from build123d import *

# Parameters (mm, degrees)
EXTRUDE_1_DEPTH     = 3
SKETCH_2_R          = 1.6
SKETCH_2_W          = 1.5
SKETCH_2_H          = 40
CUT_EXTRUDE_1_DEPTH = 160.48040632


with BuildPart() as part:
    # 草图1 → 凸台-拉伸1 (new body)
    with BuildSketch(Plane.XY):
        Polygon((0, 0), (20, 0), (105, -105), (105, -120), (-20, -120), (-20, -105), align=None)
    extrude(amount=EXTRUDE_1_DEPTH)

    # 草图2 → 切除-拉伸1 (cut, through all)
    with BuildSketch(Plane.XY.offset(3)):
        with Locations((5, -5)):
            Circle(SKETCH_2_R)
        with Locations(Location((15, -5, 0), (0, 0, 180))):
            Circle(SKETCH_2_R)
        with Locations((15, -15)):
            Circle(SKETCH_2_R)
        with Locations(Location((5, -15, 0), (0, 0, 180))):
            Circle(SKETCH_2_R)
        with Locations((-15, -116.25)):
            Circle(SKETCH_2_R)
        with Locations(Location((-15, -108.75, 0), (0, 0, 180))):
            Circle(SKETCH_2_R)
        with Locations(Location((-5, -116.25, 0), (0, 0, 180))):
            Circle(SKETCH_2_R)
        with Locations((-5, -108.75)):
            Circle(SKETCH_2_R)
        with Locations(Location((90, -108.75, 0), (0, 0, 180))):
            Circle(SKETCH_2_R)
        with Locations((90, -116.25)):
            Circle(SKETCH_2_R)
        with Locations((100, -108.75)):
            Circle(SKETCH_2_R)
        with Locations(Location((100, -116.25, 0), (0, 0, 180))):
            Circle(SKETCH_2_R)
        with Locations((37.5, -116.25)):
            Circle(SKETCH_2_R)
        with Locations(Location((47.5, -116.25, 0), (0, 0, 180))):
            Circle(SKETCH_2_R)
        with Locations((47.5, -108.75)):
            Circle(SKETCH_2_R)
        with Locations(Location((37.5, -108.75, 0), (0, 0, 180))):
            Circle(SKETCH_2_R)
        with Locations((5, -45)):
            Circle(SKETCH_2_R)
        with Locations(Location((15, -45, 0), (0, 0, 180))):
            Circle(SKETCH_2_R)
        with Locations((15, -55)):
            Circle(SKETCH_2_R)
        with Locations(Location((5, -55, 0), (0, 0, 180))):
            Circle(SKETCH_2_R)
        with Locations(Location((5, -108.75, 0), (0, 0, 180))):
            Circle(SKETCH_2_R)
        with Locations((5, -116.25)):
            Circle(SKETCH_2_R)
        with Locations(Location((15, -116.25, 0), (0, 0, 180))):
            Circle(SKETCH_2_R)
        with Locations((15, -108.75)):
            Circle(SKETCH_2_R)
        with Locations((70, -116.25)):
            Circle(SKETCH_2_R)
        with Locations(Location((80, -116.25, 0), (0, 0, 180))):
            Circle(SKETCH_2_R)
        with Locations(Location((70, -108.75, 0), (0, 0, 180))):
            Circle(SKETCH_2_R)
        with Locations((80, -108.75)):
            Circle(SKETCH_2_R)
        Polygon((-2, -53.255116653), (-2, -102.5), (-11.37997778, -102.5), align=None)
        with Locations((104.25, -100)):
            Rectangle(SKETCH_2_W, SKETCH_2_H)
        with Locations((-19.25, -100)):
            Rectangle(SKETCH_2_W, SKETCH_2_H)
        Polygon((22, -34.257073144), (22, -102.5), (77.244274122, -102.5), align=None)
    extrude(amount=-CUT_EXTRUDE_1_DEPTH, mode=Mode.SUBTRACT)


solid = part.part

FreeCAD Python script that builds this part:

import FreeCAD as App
import Part
import Sketcher
from FreeCAD import Vector
Q = App.Units.Quantity

doc = App.newDocument("Part")
params = doc.addObject("Spreadsheet::Sheet", "Params")
for row, (alias, value) in enumerate([
    ("sketch1_width", "20 mm"),
    ("sketch1_width2", "125 mm"),
    ("sketch1_height", "15 mm"),
    ("pad1_length", "3 mm"),
    ("sketch2_diameter", "3.2 mm"),
    ("sketch2_height", "40 mm"),
    ("sketch2_width", "1.5 mm"),
], start=1):
    params.set(f"A{row}", alias)
    params.set(f"B{row}", "=" + value)
    params.setAlias(f"B{row}", alias)

body = doc.addObject("PartDesign::Body", "Body")

# Sketch on XY plane
sketch1 = body.newObject("Sketcher::SketchObject", "Sketch")
sketch1.AttachmentSupport = (doc.getObject("XY_Plane"), [""])
sketch1.MapMode = "FlatFace"
sketch1.addGeometry(Part.LineSegment(Vector(20, 0, 0), Vector(0, 0, 0)), False)
sketch1.addGeometry(Part.LineSegment(Vector(0, 0, 0), Vector(-20, -105, 0)), False)
sketch1.addGeometry(Part.LineSegment(Vector(-20, -105, 0), Vector(-20, -120, 0)), False)
sketch1.addGeometry(Part.LineSegment(Vector(-20, -120, 0), Vector(105, -120, 0)), False)
sketch1.addGeometry(Part.LineSegment(Vector(105, -120, 0), Vector(105, -105, 0)), False)
sketch1.addGeometry(Part.LineSegment(Vector(105, -105, 0), Vector(20, 0, 0)), False)
sketch1.addConstraint(Sketcher.Constraint("Coincident", 0, 2, 1, 1))
sketch1.addConstraint(Sketcher.Constraint("Coincident", 1, 2, 2, 1))
sketch1.addConstraint(Sketcher.Constraint("Coincident", 2, 2, 3, 1))
sketch1.addConstraint(Sketcher.Constraint("Coincident", 3, 2, 4, 1))
sketch1.addConstraint(Sketcher.Constraint("Coincident", 4, 2, 5, 1))
sketch1.addConstraint(Sketcher.Constraint("Coincident", 5, 2, 0, 1))
sketch1.addConstraint(Sketcher.Constraint("Horizontal", 0))
sketch1.addConstraint(Sketcher.Constraint("Vertical", 2))
sketch1.addConstraint(Sketcher.Constraint("Horizontal", 3))
sketch1.addConstraint(Sketcher.Constraint("Vertical", 4))
sketch1.addConstraint(Sketcher.Constraint("Coincident", 0, 2, -1, 1))
sketch1.addConstraint(Sketcher.Constraint("Horizontal", 1, 2, 4, 2))
sketch1.addConstraint(Sketcher.Constraint("DistanceX", 0, 2, 0, 1, Q("20 mm")))
sketch1.addConstraint(Sketcher.Constraint("DistanceX", 3, 1, 3, 2, Q("125 mm")))
sketch1.addConstraint(Sketcher.Constraint("DistanceY", 2, 2, 2, 1, Q("15 mm")))
sketch1.addConstraint(Sketcher.Constraint("DistanceX", 1, 2, -1, 1, Q("20 mm")))
sketch1.addConstraint(Sketcher.Constraint("DistanceY", 1, 2, -1, 1, Q("105 mm")))
sketch1.setExpression("Constraints[12]", "Params.sketch1_width")
sketch1.setExpression("Constraints[13]", "Params.sketch1_width2")
sketch1.setExpression("Constraints[14]", "Params.sketch1_height")
pad1 = body.newObject("PartDesign::Pad", "Pad")
pad1.Profile = sketch1
pad1.setExpression("Length", "Params.pad1_length")

# Sketch on XY plane
sketch2 = body.newObject("Sketcher::SketchObject", "Sketch001")
sketch2.AttachmentSupport = (doc.getObject("XY_Plane"), [""])
sketch2.MapMode = "FlatFace"
sketch2.AttachmentOffset = App.Placement(Vector(0, 0, 3), App.Rotation())
sketch2.addGeometry(Part.Circle(Vector(5, -5, 0), Vector(0, 0, 1), 1.6), False)
sketch2.addGeometry(Part.Circle(Vector(15, -5, 0), Vector(0, 0, 1), 1.6), False)
sketch2.addGeometry(Part.Circle(Vector(15, -15, 0), Vector(0, 0, 1), 1.6), False)
sketch2.addGeometry(Part.Circle(Vector(5, -15, 0), Vector(0, 0, 1), 1.6), False)
sketch2.addGeometry(Part.Circle(Vector(-15, -116.2, 0), Vector(0, 0, 1), 1.6), False)
sketch2.addGeometry(Part.Circle(Vector(-15, -108.8, 0), Vector(0, 0, 1), 1.6), False)
sketch2.addGeometry(Part.Circle(Vector(-5, -116.2, 0), Vector(0, 0, 1), 1.6), False)
sketch2.addGeometry(Part.Circle(Vector(-5, -108.8, 0), Vector(0, 0, 1), 1.6), False)
sketch2.addGeometry(Part.Circle(Vector(90, -108.8, 0), Vector(0, 0, 1), 1.6), False)
sketch2.addGeometry(Part.Circle(Vector(90, -116.2, 0), Vector(0, 0, 1), 1.6), False)
sketch2.addGeometry(Part.Circle(Vector(100, -108.8, 0), Vector(0, 0, 1), 1.6), False)
sketch2.addGeometry(Part.Circle(Vector(100, -116.2, 0), Vector(0, 0, 1), 1.6), False)
sketch2.addGeometry(Part.Circle(Vector(37.5, -116.2, 0), Vector(0, 0, 1), 1.6), False)
sketch2.addGeometry(Part.Circle(Vector(47.5, -116.2, 0), Vector(0, 0, 1), 1.6), False)
sketch2.addGeometry(Part.Circle(Vector(47.5, -108.8, 0), Vector(0, 0, 1), 1.6), False)
sketch2.addGeometry(Part.Circle(Vector(37.5, -108.8, 0), Vector(0, 0, 1), 1.6), False)
sketch2.addGeometry(Part.Circle(Vector(5, -45, 0), Vector(0, 0, 1), 1.6), False)
sketch2.addGeometry(Part.Circle(Vector(15, -45, 0), Vector(0, 0, 1), 1.6), False)
sketch2.addGeometry(Part.Circle(Vector(15, -55, 0), Vector(0, 0, 1), 1.6), False)
sketch2.addGeometry(Part.Circle(Vector(5, -55, 0), Vector(0, 0, 1), 1.6), False)
sketch2.addGeometry(Part.Circle(Vector(5, -108.8, 0), Vector(0, 0, 1), 1.6), False)
sketch2.addGeometry(Part.Circle(Vector(5, -116.2, 0), Vector(0, 0, 1), 1.6), False)
sketch2.addGeometry(Part.Circle(Vector(15, -116.2, 0), Vector(0, 0, 1), 1.6), False)
sketch2.addGeometry(Part.Circle(Vector(15, -108.8, 0), Vector(0, 0, 1), 1.6), False)
sketch2.addGeometry(Part.Circle(Vector(70, -116.2, 0), Vector(0, 0, 1), 1.6), False)
sketch2.addGeometry(Part.Circle(Vector(80, -116.2, 0), Vector(0, 0, 1), 1.6), False)
sketch2.addGeometry(Part.Circle(Vector(70, -108.8, 0), Vector(0, 0, 1), 1.6), False)
sketch2.addGeometry(Part.Circle(Vector(80, -108.8, 0), Vector(0, 0, 1), 1.6), False)
sketch2.addGeometry(Part.LineSegment(Vector(-2, -102.5, 0), Vector(-2, -53.3, 0)), False)
sketch2.addGeometry(Part.LineSegment(Vector(-2, -53.3, 0), Vector(-11.4, -102.5, 0)), False)
sketch2.addGeometry(Part.LineSegment(Vector(-11.4, -102.5, 0), Vector(-2, -102.5, 0)), False)
sketch2.addGeometry(Part.LineSegment(Vector(103.5, -80, 0), Vector(103.5, -120, 0)), False)
sketch2.addGeometry(Part.LineSegment(Vector(103.5, -120, 0), Vector(105, -120, 0)), False)
sketch2.addGeometry(Part.LineSegment(Vector(105, -120, 0), Vector(105, -80, 0)), False)
sketch2.addGeometry(Part.LineSegment(Vector(105, -80, 0), Vector(103.5, -80, 0)), False)
sketch2.addGeometry(Part.LineSegment(Vector(-20, -80, 0), Vector(-20, -120, 0)), False)
sketch2.addGeometry(Part.LineSegment(Vector(-20, -120, 0), Vector(-18.5, -120, 0)), False)
sketch2.addGeometry(Part.LineSegment(Vector(-18.5, -120, 0), Vector(-18.5, -80, 0)), False)
sketch2.addGeometry(Part.LineSegment(Vector(-18.5, -80, 0), Vector(-20, -80, 0)), False)
sketch2.addGeometry(Part.LineSegment(Vector(22, -34.3, 0), Vector(22, -102.5, 0)), False)
sketch2.addGeometry(Part.LineSegment(Vector(22, -102.5, 0), Vector(77.2, -102.5, 0)), False)
sketch2.addGeometry(Part.LineSegment(Vector(77.2, -102.5, 0), Vector(22, -34.3, 0)), False)
sketch2.addConstraint(Sketcher.Constraint("Coincident", 28, 2, 29, 1))
sketch2.addConstraint(Sketcher.Constraint("Coincident", 29, 2, 30, 1))
sketch2.addConstraint(Sketcher.Constraint("Coincident", 30, 2, 28, 1))
sketch2.addConstraint(Sketcher.Constraint("Coincident", 31, 2, 32, 1))
sketch2.addConstraint(Sketcher.Constraint("Coincident", 32, 2, 33, 1))
sketch2.addConstraint(Sketcher.Constraint("Coincident", 33, 2, 34, 1))
sketch2.addConstraint(Sketcher.Constraint("Coincident", 34, 2, 31, 1))
sketch2.addConstraint(Sketcher.Constraint("Coincident", 35, 2, 36, 1))
sketch2.addConstraint(Sketcher.Constraint("Coincident", 36, 2, 37, 1))
sketch2.addConstraint(Sketcher.Constraint("Coincident", 37, 2, 38, 1))
sketch2.addConstraint(Sketcher.Constraint("Coincident", 38, 2, 35, 1))
sketch2.addConstraint(Sketcher.Constraint("Coincident", 39, 2, 40, 1))
sketch2.addConstraint(Sketcher.Constraint("Coincident", 40, 2, 41, 1))
sketch2.addConstraint(Sketcher.Constraint("Coincident", 41, 2, 39, 1))
sketch2.addConstraint(Sketcher.Constraint("Vertical", 28))
sketch2.addConstraint(Sketcher.Constraint("Horizontal", 30))
sketch2.addConstraint(Sketcher.Constraint("Vertical", 31))
sketch2.addConstraint(Sketcher.Constraint("Horizontal", 32))
sketch2.addConstraint(Sketcher.Constraint("Vertical", 33))
sketch2.addConstraint(Sketcher.Constraint("Horizontal", 34))
sketch2.addConstraint(Sketcher.Constraint("Vertical", 35))
sketch2.addConstraint(Sketcher.Constraint("Horizontal", 36))
sketch2.addConstraint(Sketcher.Constraint("Vertical", 37))
sketch2.addConstraint(Sketcher.Constraint("Horizontal", 38))
sketch2.addConstraint(Sketcher.Constraint("Vertical", 39))
sketch2.addConstraint(Sketcher.Constraint("Horizontal", 40))
sketch2.addConstraint(Sketcher.Constraint("Equal", 0, 1))
sketch2.addConstraint(Sketcher.Constraint("Equal", 1, 2))
sketch2.addConstraint(Sketcher.Constraint("Equal", 2, 3))
sketch2.addConstraint(Sketcher.Constraint("Equal", 3, 4))
sketch2.addConstraint(Sketcher.Constraint("Equal", 4, 5))
sketch2.addConstraint(Sketcher.Constraint("Equal", 5, 6))
sketch2.addConstraint(Sketcher.Constraint("Equal", 6, 7))
sketch2.addConstraint(Sketcher.Constraint("Equal", 7, 8))
sketch2.addConstraint(Sketcher.Constraint("Equal", 8, 9))
sketch2.addConstraint(Sketcher.Constraint("Equal", 9, 10))
sketch2.addConstraint(Sketcher.Constraint("Equal", 10, 11))
sketch2.addConstraint(Sketcher.Constraint("Equal", 11, 12))
sketch2.addConstraint(Sketcher.Constraint("Equal", 12, 13))
sketch2.addConstraint(Sketcher.Constraint("Equal", 13, 14))
sketch2.addConstraint(Sketcher.Constraint("Equal", 14, 15))
sketch2.addConstraint(Sketcher.Constraint("Equal", 15, 16))
sketch2.addConstraint(Sketcher.Constraint("Equal", 16, 17))
sketch2.addConstraint(Sketcher.Constraint("Equal", 17, 18))
sketch2.addConstraint(Sketcher.Constraint("Equal", 18, 19))
sketch2.addConstraint(Sketcher.Constraint("Equal", 19, 20))
sketch2.addConstraint(Sketcher.Constraint("Equal", 20, 21))
sketch2.addConstraint(Sketcher.Constraint("Equal", 21, 22))
sketch2.addConstraint(Sketcher.Constraint("Equal", 22, 23))
sketch2.addConstraint(Sketcher.Constraint("Equal", 23, 24))
sketch2.addConstraint(Sketcher.Constraint("Equal", 24, 25))
sketch2.addConstraint(Sketcher.Constraint("Equal", 25, 26))
sketch2.addConstraint(Sketcher.Constraint("Equal", 26, 27))
sketch2.addConstraint(Sketcher.Constraint("Symmetric", 7, 3, 20, 3, -2))
sketch2.addConstraint(Sketcher.Constraint("Symmetric", 6, 3, 21, 3, -2))
sketch2.addConstraint(Sketcher.Constraint("Symmetric", 4, 3, 22, 3, -2))
sketch2.addConstraint(Sketcher.Constraint("Symmetric", 5, 3, 23, 3, -2))
sketch2.addConstraint(Sketcher.Constraint("Horizontal", 0, 3, 1, 3))
sketch2.addConstraint(Sketcher.Constraint("Horizontal", 2, 3, 3, 3))
sketch2.addConstraint(Sketcher.Constraint("Horizontal", 4, 3, 6, 3))
sketch2.addConstraint(Sketcher.Constraint("Horizontal", 5, 3, 7, 3))
sketch2.addConstraint(Sketcher.Constraint("Horizontal", 7, 3, 8, 3))
sketch2.addConstraint(Sketcher.Constraint("Horizontal", 6, 3, 9, 3))
sketch2.addConstraint(Sketcher.Constraint("Horizontal", 8, 3, 10, 3))
sketch2.addConstraint(Sketcher.Constraint("Horizontal", 9, 3, 11, 3))
sketch2.addConstraint(Sketcher.Constraint("Horizontal", 11, 3, 12, 3))
sketch2.addConstraint(Sketcher.Constraint("Horizontal", 12, 3, 13, 3))
sketch2.addConstraint(Sketcher.Constraint("Horizontal", 10, 3, 14, 3))
sketch2.addConstraint(Sketcher.Constraint("Horizontal", 14, 3, 15, 3))
sketch2.addConstraint(Sketcher.Constraint("Horizontal", 16, 3, 17, 3))
sketch2.addConstraint(Sketcher.Constraint("Horizontal", 18, 3, 19, 3))
sketch2.addConstraint(Sketcher.Constraint("Horizontal", 22, 3, 24, 3))
sketch2.addConstraint(Sketcher.Constraint("Horizontal", 24, 3, 25, 3))
sketch2.addConstraint(Sketcher.Constraint("Horizontal", 23, 3, 26, 3))
sketch2.addConstraint(Sketcher.Constraint("Horizontal", 26, 3, 27, 3))
sketch2.addConstraint(Sketcher.Constraint("Horizontal", 32, 2, 35, 2))
sketch2.addConstraint(Sketcher.Constraint("Horizontal", 34, 2, 37, 2))
sketch2.addConstraint(Sketcher.Constraint("Horizontal", 30, 2, 39, 2))
sketch2.addConstraint(Sketcher.Constraint("Vertical", 1, 3, 2, 3))
sketch2.addConstraint(Sketcher.Constraint("Vertical", 0, 3, 3, 3))
sketch2.addConstraint(Sketcher.Constraint("Vertical", 4, 3, 5, 3))
sketch2.addConstraint(Sketcher.Constraint("Vertical", 6, 3, 7, 3))
sketch2.addConstraint(Sketcher.Constraint("Vertical", 8, 3, 9, 3))
sketch2.addConstraint(Sketcher.Constraint("Vertical", 10, 3, 11, 3))
sketch2.addConstraint(Sketcher.Constraint("Vertical", 13, 3, 14, 3))
sketch2.addConstraint(Sketcher.Constraint("Vertical", 12, 3, 15, 3))
sketch2.addConstraint(Sketcher.Constraint("Vertical", 3, 3, 16, 3))
sketch2.addConstraint(Sketcher.Constraint("Vertical", 2, 3, 17, 3))
sketch2.addConstraint(Sketcher.Constraint("Vertical", 17, 3, 18, 3))
sketch2.addConstraint(Sketcher.Constraint("Vertical", 16, 3, 19, 3))
sketch2.addConstraint(Sketcher.Constraint("Vertical", 19, 3, 20, 3))
sketch2.addConstraint(Sketcher.Constraint("Vertical", 18, 3, 22, 3))
sketch2.addConstraint(Sketcher.Constraint("Vertical", 24, 3, 26, 3))
sketch2.addConstraint(Sketcher.Constraint("Vertical", 25, 3, 27, 3))
sketch2.addConstraint(Sketcher.Constraint("Equal", 34, 36))
sketch2.addConstraint(Sketcher.Constraint("Diameter", 0, Q("3.2 mm")))
sketch2.addConstraint(Sketcher.Constraint("DistanceY", 31, 2, 31, 1, Q("40 mm")))
sketch2.addConstraint(Sketcher.Constraint("DistanceX", 32, 1, 32, 2, Q("1.5 mm")))
sketch2.addConstraint(Sketcher.Constraint("DistanceX", -1, 1, 0, 3, Q("5 mm")))
sketch2.addConstraint(Sketcher.Constraint("DistanceY", 0, 3, -1, 1, Q("5 mm")))
sketch2.addConstraint(Sketcher.Constraint("DistanceX", -1, 1, 1, 3, Q("15 mm")))
sketch2.addConstraint(Sketcher.Constraint("DistanceY", 2, 3, -1, 1, Q("15 mm")))
sketch2.addConstraint(Sketcher.Constraint("DistanceX", -1, 1, 8, 3, Q("90 mm")))
sketch2.addConstraint(Sketcher.Constraint("DistanceX", -1, 1, 10, 3, Q("100 mm")))
sketch2.addConstraint(Sketcher.Constraint("DistanceY", 16, 3, -1, 1, Q("45 mm")))
sketch2.addConstraint(Sketcher.Constraint("DistanceY", 18, 3, -1, 1, Q("55 mm")))
sketch2.addConstraint(Sketcher.Constraint("DistanceX", -1, 1, 24, 3, Q("70 mm")))
sketch2.addConstraint(Sketcher.Constraint("DistanceX", -1, 1, 25, 3, Q("80 mm")))
sketch2.addConstraint(Sketcher.Constraint("DistanceX", 28, 2, -1, 1, Q("2 mm")))
sketch2.addConstraint(Sketcher.Constraint("DistanceY", 31, 2, -1, 1, Q("120 mm")))
sketch2.addConstraint(Sketcher.Constraint("DistanceX", -1, 1, 32, 2, Q("105 mm")))
sketch2.addConstraint(Sketcher.Constraint("DistanceX", 35, 2, -1, 1, Q("20 mm")))
sketch2.addConstraint(Sketcher.Constraint("DistanceX", -1, 1, 39, 2, Q("22 mm")))
sketch2.addConstraint(Sketcher.Constraint("DistanceX", 12, 3, 13, 3, Q("10 mm")))
sketch2.addConstraint(Sketcher.Constraint("DistanceX", -1, 1, 12, 3, Q("37.5 mm")))
sketch2.addConstraint(Sketcher.Constraint("DistanceY", 29, 2, -1, 1, Q("102.5 mm")))
sketch2.addConstraint(Sketcher.Constraint("DistanceY", 4, 3, 5, 3, Q("7.5 mm")))
sketch2.addConstraint(Sketcher.Constraint("DistanceY", 4, 3, -1, 1, Q("116.25 mm")))
sketch2.addConstraint(Sketcher.Constraint("DistanceX", 30, 1, 30, 2, Q("9.379978 mm")))
sketch2.addConstraint(Sketcher.Constraint("DistanceX", 40, 1, 40, 2, Q("55.244274 mm")))
sketch2.addConstraint(Sketcher.Constraint("DistanceY", 28, 1, 28, 2, Q("49.244883 mm")))
sketch2.addConstraint(Sketcher.Constraint("DistanceY", 39, 2, 39, 1, Q("68.242927 mm")))
sketch2.setExpression("Constraints[95]", "Params.sketch2_diameter")
sketch2.setExpression("Constraints[96]", "Params.sketch2_height")
sketch2.setExpression("Constraints[97]", "Params.sketch2_width")
pocket1 = body.newObject("PartDesign::Pocket", "Pocket")
pocket1.Profile = sketch2
pocket1.Type = "ThroughAll"

doc.recompute()
